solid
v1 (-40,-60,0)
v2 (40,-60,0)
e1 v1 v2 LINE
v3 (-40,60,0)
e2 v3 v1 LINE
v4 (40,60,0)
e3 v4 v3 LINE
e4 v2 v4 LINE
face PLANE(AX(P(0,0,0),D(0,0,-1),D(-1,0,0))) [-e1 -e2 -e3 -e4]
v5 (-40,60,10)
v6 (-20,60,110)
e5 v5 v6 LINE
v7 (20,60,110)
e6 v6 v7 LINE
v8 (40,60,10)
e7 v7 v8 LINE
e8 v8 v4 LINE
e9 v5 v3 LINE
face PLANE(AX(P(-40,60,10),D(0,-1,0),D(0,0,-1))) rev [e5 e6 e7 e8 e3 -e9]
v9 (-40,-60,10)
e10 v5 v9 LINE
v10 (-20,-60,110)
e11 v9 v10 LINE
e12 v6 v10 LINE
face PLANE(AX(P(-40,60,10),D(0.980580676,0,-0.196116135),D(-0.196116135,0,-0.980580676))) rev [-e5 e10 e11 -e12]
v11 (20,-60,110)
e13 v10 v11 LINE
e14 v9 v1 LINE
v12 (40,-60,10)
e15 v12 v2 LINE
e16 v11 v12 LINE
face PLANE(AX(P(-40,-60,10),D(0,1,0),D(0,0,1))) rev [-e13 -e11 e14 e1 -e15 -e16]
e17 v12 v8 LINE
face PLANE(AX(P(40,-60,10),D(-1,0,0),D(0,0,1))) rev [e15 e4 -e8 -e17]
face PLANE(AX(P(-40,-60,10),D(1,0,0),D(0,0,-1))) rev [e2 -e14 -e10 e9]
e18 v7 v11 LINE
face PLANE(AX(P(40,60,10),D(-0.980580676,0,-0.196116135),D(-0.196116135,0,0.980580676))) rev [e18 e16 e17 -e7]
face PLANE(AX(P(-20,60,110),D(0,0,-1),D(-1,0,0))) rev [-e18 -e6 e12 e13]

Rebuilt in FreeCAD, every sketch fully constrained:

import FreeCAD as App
import Part
import Sketcher
from FreeCAD import Vector

doc = App.newDocument("Part")
body = doc.addObject("PartDesign::Body", "Body")

# Sketch on XY plane
sketch1 = body.newObject("Sketcher::SketchObject", "Sketch")
sketch1.AttachmentSupport = (doc.getObject("XY_Plane"), [""])
sketch1.MapMode = "FlatFace"
sketch1.addGeometry(Part.LineSegment(Vector(-40, 60, 0), Vector(-40, -60, 0)), False)
sketch1.addGeometry(Part.LineSegment(Vector(-40, -60, 0), Vector(40, -60, 0)), False)
sketch1.addGeometry(Part.LineSegment(Vector(40, -60, 0), Vector(40, 60, 0)), False)
sketch1.addGeometry(Part.LineSegment(Vector(40, 60, 0), Vector(-40, 60, 0)), False)
sketch1.addConstraint(Sketcher.Constraint("Coincident", 0, 2, 1, 1))
sketch1.addConstraint(Sketcher.Constraint("Coincident", 1, 2, 2, 1))
sketch1.addConstraint(Sketcher.Constraint("Coincident", 2, 2, 3, 1))
sketch1.addConstraint(Sketcher.Constraint("Coincident", 3, 2, 0, 1))
sketch1.addConstraint(Sketcher.Constraint("Vertical", 0))
sketch1.addConstraint(Sketcher.Constraint("Horizontal", 1))
sketch1.addConstraint(Sketcher.Constraint("Vertical", 2))
sketch1.addConstraint(Sketcher.Constraint("Horizontal", 3))
sketch1.addConstraint(Sketcher.Constraint("Symmetric", 0, 2, 2, 2, -1, 1))
sketch1.addConstraint(Sketcher.Constraint("DistanceX", 1, 1, 1, 2, 80.0))
sketch1.addConstraint(Sketcher.Constraint("DistanceY", 0, 2, 0, 1, 120.0))
pad1 = body.newObject("PartDesign::Pad", "Pad")
pad1.Profile = sketch1
pad1.Length = 10

# Sketch on XZ plane
sketch2 = body.newObject("Sketcher::SketchObject", "Sketch001")
sketch2.AttachmentSupport = (doc.getObject("XZ_Plane"), [""])
sketch2.MapMode = "FlatFace"
sketch2.addGeometry(Part.LineSegment(Vector(40, 10, 0), Vector(-40, 10, 0)), False)
sketch2.addGeometry(Part.LineSegment(Vector(-40, 10, 0), Vector(-20, 110, 0)), False)
sketch2.addGeometry(Part.LineSegment(Vector(-20, 110, 0), Vector(20, 110, 0)), False)
sketch2.addGeometry(Part.LineSegment(Vector(20, 110, 0), Vector(40, 10, 0)), False)
sketch2.addConstraint(Sketcher.Constraint("Coincident", 0, 2, 1, 1))
sketch2.addConstraint(Sketcher.Constraint("Coincident", 1, 2, 2, 1))
sketch2.addConstraint(Sketcher.Constraint("Coincident", 2, 2, 3, 1))
sketch2.addConstraint(Sketcher.Constraint("Coincident", 3, 2, 0, 1))
sketch2.addConstraint(Sketcher.Constraint("Horizontal", 0))
sketch2.addConstraint(Sketcher.Constraint("Horizontal", 2))
sketch2.addConstraint(Sketcher.Constraint("Equal", 1, 3))
sketch2.addConstraint(Sketcher.Constraint("DistanceX", 0, 2, 0, 1, 80.0))
sketch2.addConstraint(Sketcher.Constraint("DistanceX", 2, 1, 2, 2, 40.0))
sketch2.addConstraint(Sketcher.Constraint("DistanceX", 0, 2, -1, 1, 40.0))
sketch2.addConstraint(Sketcher.Constraint("DistanceY", -1, 1, 0, 2, 10.0))
sketch2.addConstraint(Sketcher.Constraint("DistanceY", -1, 1, 1, 2, 110.0))
pad2 = body.newObject("PartDesign::Pad", "Pad001")
pad2.Profile = sketch2
pad2.Length = 120
pad2.Midplane = True

doc.recompute()
